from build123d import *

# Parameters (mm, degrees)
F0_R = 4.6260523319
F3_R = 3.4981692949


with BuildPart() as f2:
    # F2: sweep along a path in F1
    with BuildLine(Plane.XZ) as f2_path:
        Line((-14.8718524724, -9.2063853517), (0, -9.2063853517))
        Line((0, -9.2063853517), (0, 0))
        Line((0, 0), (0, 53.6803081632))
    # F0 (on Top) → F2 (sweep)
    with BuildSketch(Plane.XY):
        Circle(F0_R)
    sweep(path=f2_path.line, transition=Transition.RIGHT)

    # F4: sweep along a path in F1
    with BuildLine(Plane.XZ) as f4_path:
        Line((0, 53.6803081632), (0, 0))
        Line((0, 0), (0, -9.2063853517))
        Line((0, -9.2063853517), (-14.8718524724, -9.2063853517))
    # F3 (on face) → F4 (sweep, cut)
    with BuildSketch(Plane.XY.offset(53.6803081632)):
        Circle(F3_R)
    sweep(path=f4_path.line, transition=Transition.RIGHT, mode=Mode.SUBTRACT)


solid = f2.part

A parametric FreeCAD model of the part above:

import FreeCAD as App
import Part
import Sketcher

V = App.Vector
Q = App.Units.Quantity

doc = App.newDocument("Part")
body = doc.addObject("PartDesign::Body", "Body")

# Sketch on XY plane
sketch1 = body.newObject("Sketcher::SketchObject", "Sketch")
sketch1.AttachmentSupport = (doc.getObject("XY_Plane"), [""])
sketch1.MapMode = "FlatFace"
sketch1.addGeometry(Part.Circle(V(0, 0, 0), V(0, 0, 1), 4.6), False)
sketch1.addConstraint(Sketcher.Constraint("Coincident", 0, 3, -1, 1))
sketch1.addConstraint(Sketcher.Constraint("Diameter", 0, Q("9.252105 mm")))

# Sketch on XZ plane
sketch2 = body.newObject("Sketcher::SketchObject", "Sketch001")
sketch2.AttachmentSupport = (doc.getObject("XZ_Plane"), [""])
sketch2.MapMode = "FlatFace"
sketch2.addGeometry(Part.LineSegment(V(-15, -9, 0), V(0, -9, 0)), False)
sketch2.addGeometry(Part.LineSegment(V(0, -9, 0), V(0, 54, 0)), False)
sketch2.addConstraint(Sketcher.Constraint("Coincident", 0, 2, 1, 1))
sketch2.addConstraint(Sketcher.Constraint("Horizontal", 0))
sketch2.addConstraint(Sketcher.Constraint("Vertical", 1))
sketch2.addConstraint(Sketcher.Constraint("PointOnObject", 0, 2, -2))
sketch2.addConstraint(Sketcher.Constraint("DistanceX", 0, 1, 0, 2, Q("14.871852 mm")))
sketch2.addConstraint(Sketcher.Constraint("DistanceY", 1, 1, 1, 2, Q("62.886694 mm")))
sketch2.addConstraint(Sketcher.Constraint("DistanceY", -1, 1, 1, 2, Q("53.680308 mm")))
doc.recompute()

additivepipe = body.newObject("PartDesign::AdditivePipe", "AdditivePipe")
additivepipe.Profile = sketch1
additivepipe.Spine = (sketch2, ["Edge1", "Edge2"])
additivepipe.Transition = "Right corner"

# Sketch on XY plane
sketch3 = body.newObject("Sketcher::SketchObject", "Sketch002")
sketch3.AttachmentSupport = (doc.getObject("XY_Plane"), [""])
sketch3.MapMode = "FlatFace"
sketch3.AttachmentOffset = App.Placement(V(0, 0, 53.680308), App.Rotation())
sketch3.addGeometry(Part.Circle(V(0, 0, 0), V(0, 0, 1), 3.5), False)
sketch3.addConstraint(Sketcher.Constraint("Coincident", 0, 3, -1, 1))
sketch3.addConstraint(Sketcher.Constraint("Diameter", 0, Q("6.996339 mm")))

# Sketch on XZ plane
sketch4 = body.newObject("Sketcher::SketchObject", "Sketch003")
sketch4.AttachmentSupport = (doc.getObject("XZ_Plane"), [""])
sketch4.MapMode = "FlatFace"
sketch4.addGeometry(Part.LineSegment(V(0, 54, 0), V(0, -9, 0)), False)
sketch4.addGeometry(Part.LineSegment(V(0, -9, 0), V(-15, -9, 0)), False)
sketch4.addConstraint(Sketcher.Constraint("Coincident", 0, 2, 1, 1))
sketch4.addConstraint(Sketcher.Constraint("Vertical", 0))
sketch4.addConstraint(Sketcher.Constraint("Horizontal", 1))
sketch4.addConstraint(Sketcher.Constraint("PointOnObject", 0, 1, -2))
sketch4.addConstraint(Sketcher.Constraint("DistanceX", 1, 2, 1, 1, Q("14.871852 mm")))
sketch4.addConstraint(Sketcher.Constraint("DistanceY", 0, 2, 0, 1, Q("62.886694 mm")))
sketch4.addConstraint(Sketcher.Constraint("DistanceY", -1, 1, 0, 1, Q("53.680308 mm")))
doc.recompute()

subtractivepipe = body.newObject("PartDesign::SubtractivePipe", "SubtractivePipe")
subtractivepipe.Profile = sketch3
subtractivepipe.Spine = (sketch4, ["Edge1", "Edge2"])
subtractivepipe.Transition = "Right corner"

doc.recompute()
